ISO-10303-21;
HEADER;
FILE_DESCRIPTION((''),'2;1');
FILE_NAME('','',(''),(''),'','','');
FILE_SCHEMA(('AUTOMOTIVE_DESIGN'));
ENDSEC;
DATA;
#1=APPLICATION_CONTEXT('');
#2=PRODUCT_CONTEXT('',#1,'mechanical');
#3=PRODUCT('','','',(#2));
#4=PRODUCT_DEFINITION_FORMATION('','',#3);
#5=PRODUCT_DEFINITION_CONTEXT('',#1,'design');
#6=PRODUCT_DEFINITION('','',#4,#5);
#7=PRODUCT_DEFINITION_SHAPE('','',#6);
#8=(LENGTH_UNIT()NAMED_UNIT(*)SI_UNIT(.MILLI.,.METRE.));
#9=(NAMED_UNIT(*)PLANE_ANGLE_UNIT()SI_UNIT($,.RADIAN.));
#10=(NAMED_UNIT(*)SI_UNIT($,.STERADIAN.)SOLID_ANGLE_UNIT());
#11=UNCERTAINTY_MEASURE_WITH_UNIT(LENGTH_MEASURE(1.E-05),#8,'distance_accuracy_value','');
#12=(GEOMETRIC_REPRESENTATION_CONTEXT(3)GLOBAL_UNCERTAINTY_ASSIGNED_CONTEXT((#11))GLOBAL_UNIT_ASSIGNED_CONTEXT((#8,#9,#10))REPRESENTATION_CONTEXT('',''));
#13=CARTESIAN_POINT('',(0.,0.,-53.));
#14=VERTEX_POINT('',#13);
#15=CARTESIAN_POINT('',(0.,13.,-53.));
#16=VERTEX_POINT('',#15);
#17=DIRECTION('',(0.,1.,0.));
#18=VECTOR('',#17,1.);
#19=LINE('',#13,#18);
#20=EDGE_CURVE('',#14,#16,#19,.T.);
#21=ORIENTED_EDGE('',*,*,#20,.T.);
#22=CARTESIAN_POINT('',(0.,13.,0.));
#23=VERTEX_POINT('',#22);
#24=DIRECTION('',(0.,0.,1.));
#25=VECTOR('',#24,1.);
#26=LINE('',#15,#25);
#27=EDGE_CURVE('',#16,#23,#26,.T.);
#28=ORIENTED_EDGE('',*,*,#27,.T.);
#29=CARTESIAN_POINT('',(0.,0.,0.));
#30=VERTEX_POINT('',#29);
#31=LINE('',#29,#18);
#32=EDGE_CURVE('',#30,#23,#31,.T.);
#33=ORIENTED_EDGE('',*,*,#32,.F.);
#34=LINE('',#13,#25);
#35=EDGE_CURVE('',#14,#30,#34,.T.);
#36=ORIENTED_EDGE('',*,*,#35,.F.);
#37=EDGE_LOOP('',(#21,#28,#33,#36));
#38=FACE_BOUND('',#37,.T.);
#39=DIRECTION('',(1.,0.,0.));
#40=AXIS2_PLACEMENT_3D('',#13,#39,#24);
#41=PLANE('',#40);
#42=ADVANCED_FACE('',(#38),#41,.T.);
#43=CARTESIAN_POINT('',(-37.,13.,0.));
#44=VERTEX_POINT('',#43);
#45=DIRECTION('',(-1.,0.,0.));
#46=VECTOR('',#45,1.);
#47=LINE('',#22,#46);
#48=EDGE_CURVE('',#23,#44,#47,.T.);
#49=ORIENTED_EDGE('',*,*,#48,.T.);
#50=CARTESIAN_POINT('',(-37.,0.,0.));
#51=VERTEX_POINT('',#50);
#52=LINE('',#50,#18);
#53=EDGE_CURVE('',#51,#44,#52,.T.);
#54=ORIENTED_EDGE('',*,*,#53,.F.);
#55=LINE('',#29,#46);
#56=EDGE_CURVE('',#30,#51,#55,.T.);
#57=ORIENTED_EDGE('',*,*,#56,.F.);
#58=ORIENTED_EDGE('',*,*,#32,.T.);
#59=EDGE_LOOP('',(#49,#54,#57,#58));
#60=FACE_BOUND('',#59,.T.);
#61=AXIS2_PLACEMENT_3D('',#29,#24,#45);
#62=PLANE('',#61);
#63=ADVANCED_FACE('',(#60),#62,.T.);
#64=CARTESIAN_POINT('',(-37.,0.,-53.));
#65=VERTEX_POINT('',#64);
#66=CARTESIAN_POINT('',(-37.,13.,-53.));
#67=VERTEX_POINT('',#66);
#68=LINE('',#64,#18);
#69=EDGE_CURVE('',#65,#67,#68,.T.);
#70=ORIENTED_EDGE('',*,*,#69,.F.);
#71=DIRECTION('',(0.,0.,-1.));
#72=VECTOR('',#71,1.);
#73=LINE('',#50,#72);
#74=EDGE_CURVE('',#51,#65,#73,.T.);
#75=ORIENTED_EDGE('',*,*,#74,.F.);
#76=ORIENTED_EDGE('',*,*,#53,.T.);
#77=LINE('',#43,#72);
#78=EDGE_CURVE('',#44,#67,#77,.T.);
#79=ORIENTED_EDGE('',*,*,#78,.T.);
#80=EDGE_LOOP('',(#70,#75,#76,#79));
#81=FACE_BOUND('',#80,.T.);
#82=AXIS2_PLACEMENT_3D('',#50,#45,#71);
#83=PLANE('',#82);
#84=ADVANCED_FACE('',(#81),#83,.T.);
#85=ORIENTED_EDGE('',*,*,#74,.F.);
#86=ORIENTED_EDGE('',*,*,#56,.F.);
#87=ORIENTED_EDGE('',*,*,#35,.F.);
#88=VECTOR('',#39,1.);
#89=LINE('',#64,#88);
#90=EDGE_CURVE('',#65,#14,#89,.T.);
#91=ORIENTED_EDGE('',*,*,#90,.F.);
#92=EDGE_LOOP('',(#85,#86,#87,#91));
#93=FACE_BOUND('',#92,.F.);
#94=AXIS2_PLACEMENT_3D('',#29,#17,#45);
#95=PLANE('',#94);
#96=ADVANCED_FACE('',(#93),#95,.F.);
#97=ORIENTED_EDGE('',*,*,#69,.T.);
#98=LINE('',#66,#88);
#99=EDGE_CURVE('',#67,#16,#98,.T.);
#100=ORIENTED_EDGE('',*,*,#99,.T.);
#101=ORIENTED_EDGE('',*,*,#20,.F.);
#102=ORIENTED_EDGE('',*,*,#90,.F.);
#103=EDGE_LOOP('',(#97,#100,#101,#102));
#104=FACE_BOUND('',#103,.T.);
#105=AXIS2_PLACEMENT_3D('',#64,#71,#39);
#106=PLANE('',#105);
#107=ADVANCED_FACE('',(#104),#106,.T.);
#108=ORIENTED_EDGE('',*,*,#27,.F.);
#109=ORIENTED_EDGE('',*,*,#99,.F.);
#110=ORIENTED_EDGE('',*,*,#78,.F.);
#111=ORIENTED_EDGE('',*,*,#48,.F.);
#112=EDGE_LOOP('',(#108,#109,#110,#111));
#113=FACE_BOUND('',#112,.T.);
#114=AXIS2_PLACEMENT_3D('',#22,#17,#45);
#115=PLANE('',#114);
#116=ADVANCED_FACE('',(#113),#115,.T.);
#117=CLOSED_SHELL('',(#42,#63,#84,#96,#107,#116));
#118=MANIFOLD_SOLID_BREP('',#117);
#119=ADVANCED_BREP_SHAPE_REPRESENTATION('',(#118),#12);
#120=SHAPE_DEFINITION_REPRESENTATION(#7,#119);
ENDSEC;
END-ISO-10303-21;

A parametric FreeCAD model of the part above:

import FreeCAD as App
import Part
import Sketcher
Q = App.Units.Quantity


def add_polygon(sketch, points):
    """Adds a closed chain of lines whose ends are joined by coincident constraints."""
    first, n = sketch.GeometryCount, len(points)
    for a, b in zip(points, points[1:] + points[:1]):
        sketch.addGeometry(Part.LineSegment(App.Vector(*a, 0), App.Vector(*b, 0)), False)
    for i in range(n):
        sketch.addConstraint(Sketcher.Constraint("Coincident", first + i, 2, first + (i + 1) % n, 1))

doc = App.newDocument("Part")
body = doc.addObject("PartDesign::Body", "Body")

# Sketch on XZ plane
sketch1 = body.newObject("Sketcher::SketchObject", "Sketch")
sketch1.AttachmentSupport = (doc.getObject("XZ_Plane"), [""])
sketch1.MapMode = "FlatFace"
add_polygon(sketch1, [(-37, 0), (0, 0), (0, -53), (-37, -53)])  # lines 0-3
sketch1.addConstraint([
    Sketcher.Constraint("Horizontal", 0),
    Sketcher.Constraint("Vertical", 1),
    Sketcher.Constraint("Horizontal", 2),
    Sketcher.Constraint("Vertical", 3),
    Sketcher.Constraint("Coincident", 0, 2, -1, 1),
    Sketcher.Constraint("DistanceX", 0, 1, 0, 2, Q("37 mm")),
    Sketcher.Constraint("DistanceY", 1, 2, 1, 1, Q("53 mm")),
])
pad1 = body.newObject("PartDesign::Pad", "Pad")
pad1.Profile = sketch1
pad1.Length = 13
pad1.Reversed = True

doc.recompute()
